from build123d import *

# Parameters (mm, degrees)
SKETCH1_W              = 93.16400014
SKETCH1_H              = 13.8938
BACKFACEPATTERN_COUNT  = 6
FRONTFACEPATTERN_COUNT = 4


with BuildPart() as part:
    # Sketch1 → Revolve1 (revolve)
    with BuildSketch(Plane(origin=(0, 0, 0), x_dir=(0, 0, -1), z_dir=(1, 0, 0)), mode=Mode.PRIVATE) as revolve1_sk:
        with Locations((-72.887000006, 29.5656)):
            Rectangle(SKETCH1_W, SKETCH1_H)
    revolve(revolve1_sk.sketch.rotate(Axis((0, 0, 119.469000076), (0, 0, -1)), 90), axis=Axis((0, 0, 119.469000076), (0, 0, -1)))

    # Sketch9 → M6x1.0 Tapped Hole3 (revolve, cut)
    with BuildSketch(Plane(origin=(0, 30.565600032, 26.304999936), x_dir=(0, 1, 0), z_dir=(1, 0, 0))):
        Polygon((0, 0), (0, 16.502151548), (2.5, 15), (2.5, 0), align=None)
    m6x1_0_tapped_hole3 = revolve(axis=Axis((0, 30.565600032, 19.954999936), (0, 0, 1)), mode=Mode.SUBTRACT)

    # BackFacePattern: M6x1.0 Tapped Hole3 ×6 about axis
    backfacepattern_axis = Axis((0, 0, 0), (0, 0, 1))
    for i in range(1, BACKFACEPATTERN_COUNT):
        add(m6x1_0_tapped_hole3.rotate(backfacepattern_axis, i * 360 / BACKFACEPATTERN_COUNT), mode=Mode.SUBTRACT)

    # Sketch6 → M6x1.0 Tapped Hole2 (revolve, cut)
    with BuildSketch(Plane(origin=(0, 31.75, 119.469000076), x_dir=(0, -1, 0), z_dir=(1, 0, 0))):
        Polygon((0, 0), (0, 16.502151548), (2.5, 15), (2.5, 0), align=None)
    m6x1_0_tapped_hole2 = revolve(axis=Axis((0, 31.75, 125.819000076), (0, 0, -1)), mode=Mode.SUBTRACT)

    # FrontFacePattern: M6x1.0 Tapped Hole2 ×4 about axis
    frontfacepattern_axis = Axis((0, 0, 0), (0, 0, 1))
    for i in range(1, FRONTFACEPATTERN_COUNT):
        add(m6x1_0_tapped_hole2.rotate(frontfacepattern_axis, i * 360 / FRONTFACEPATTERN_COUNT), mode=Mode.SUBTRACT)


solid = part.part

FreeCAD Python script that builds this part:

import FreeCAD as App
import Part
import Sketcher

V = App.Vector
Q = App.Units.Quantity

doc = App.newDocument("Part")
body = doc.addObject("PartDesign::Body", "Body")

sketch1 = doc.addObject("Sketcher::SketchObject", "Sketch")
body.addObject(sketch1)
sketch1.AttachmentSupport = (doc.YZ_Plane, [""])
sketch1.MapMode = "FlatFace"
sketch1.addGeometry(Part.LineSegment(V(37, 119, 0), V(23, 119, 0)), False)
sketch1.addGeometry(Part.LineSegment(V(23, 119, 0), V(23, 26, 0)), False)
sketch1.addGeometry(Part.LineSegment(V(23, 26, 0), V(37, 26, 0)), False)
sketch1.addGeometry(Part.LineSegment(V(37, 26, 0), V(37, 119, 0)), False)
sketch1.addConstraint(Sketcher.Constraint("Coincident", 0, 2, 1, 1))
sketch1.addConstraint(Sketcher.Constraint("Coincident", 1, 2, 2, 1))
sketch1.addConstraint(Sketcher.Constraint("Coincident", 2, 2, 3, 1))
sketch1.addConstraint(Sketcher.Constraint("Coincident", 3, 2, 0, 1))
sketch1.addConstraint(Sketcher.Constraint("Horizontal", 0))
sketch1.addConstraint(Sketcher.Constraint("Vertical", 1))
sketch1.addConstraint(Sketcher.Constraint("Horizontal", 2))
sketch1.addConstraint(Sketcher.Constraint("Vertical", 3))
sketch1.addConstraint(Sketcher.Constraint("DistanceY", 1, 2, 1, 1, 93.164))
sketch1.addConstraint(Sketcher.Constraint("DistanceX", 0, 2, 0, 1, 13.8938))
sketch1.addConstraint(Sketcher.Constraint("DistanceY", -1, 1, 0, 2, 119.469))
sketch1.addConstraint(Sketcher.Constraint("DistanceX", -1, 1, 0, 2, 22.6187))
revolution = doc.addObject("PartDesign::Revolution", "Revolution")
body.addObject(revolution)
revolution.Profile = sketch1
revolution.ReferenceAxis = (sketch1, ["V_Axis"])
revolution.Angle = 360

sketch2 = doc.addObject("Sketcher::SketchObject", "Sketch001")
body.addObject(sketch2)
sketch2.AttachmentSupport = (doc.YZ_Plane, [""])
sketch2.MapMode = "FlatFace"
sketch2.addGeometry(Part.LineSegment(V(30.6, 42.8, 0), V(30.6, 26.3, 0)), False)
sketch2.addGeometry(Part.LineSegment(V(30.6, 26.3, 0), V(33.1, 26.3, 0)), False)
sketch2.addGeometry(Part.LineSegment(V(33.1, 26.3, 0), V(33.1, 41.3, 0)), False)
sketch2.addGeometry(Part.LineSegment(V(33.1, 41.3, 0), V(30.6, 42.8, 0)), False)
sketch2.addGeometry(Part.LineSegment(V(30.6, 26.3, 0), V(30.6, 42.8, 0)), True)
sketch2.addConstraint(Sketcher.Constraint("Coincident", 0, 2, 1, 1))
sketch2.addConstraint(Sketcher.Constraint("Coincident", 1, 2, 2, 1))
sketch2.addConstraint(Sketcher.Constraint("Coincident", 2, 2, 3, 1))
sketch2.addConstraint(Sketcher.Constraint("Coincident", 3, 2, 0, 1))
sketch2.addConstraint(Sketcher.Constraint("Vertical", 0))
sketch2.addConstraint(Sketcher.Constraint("Horizontal", 1))
sketch2.addConstraint(Sketcher.Constraint("Vertical", 2))
sketch2.addConstraint(Sketcher.Constraint("Vertical", 4))
sketch2.addConstraint(Sketcher.Constraint("Coincident", 4, 1, 0, 2))
sketch2.addConstraint(Sketcher.Constraint("Equal", 0, 4))
sketch2.addConstraint(Sketcher.Constraint("DistanceY", 2, 1, 2, 2, 15.0))
sketch2.addConstraint(Sketcher.Constraint("Angle", 3, Q("149 deg")))
sketch2.addConstraint(Sketcher.Constraint("DistanceX", 1, 1, 1, 2, 2.5))
sketch2.addConstraint(Sketcher.Constraint("DistanceY", -1, 1, 0, 2, 26.305))
sketch2.addConstraint(Sketcher.Constraint("DistanceX", -1, 1, 0, 2, 30.5656))
groove = doc.addObject("PartDesign::Groove", "Groove")
body.addObject(groove)
groove.Profile = sketch2
groove.ReferenceAxis = (sketch2, ["Axis0"])
groove.Angle = 360
doc.recompute()

polarpattern = doc.addObject("PartDesign::PolarPattern", "PolarPattern")
body.addObject(polarpattern)
polarpattern.Originals = [groove]
polarpattern.Axis = (doc.Z_Axis, [""])
polarpattern.Angle = 360
polarpattern.Occurrences = 6
body.Tip = polarpattern

sketch3 = doc.addObject("Sketcher::SketchObject", "Sketch002")
body.addObject(sketch3)
sketch3.AttachmentSupport = (doc.YZ_Plane, [""])
sketch3.MapMode = "FlatFace"
sketch3.addGeometry(Part.LineSegment(V(31.8, 103, 0), V(31.8, 119.5, 0)), False)
sketch3.addGeometry(Part.LineSegment(V(31.8, 119.5, 0), V(29.2, 119.5, 0)), False)
sketch3.addGeometry(Part.LineSegment(V(29.2, 119.5, 0), V(29.2, 104.5, 0)), False)
sketch3.addGeometry(Part.LineSegment(V(29.2, 104.5, 0), V(31.8, 103, 0)), False)
sketch3.addGeometry(Part.LineSegment(V(31.8, 119.5, 0), V(31.8, 103, 0)), True)
sketch3.addConstraint(Sketcher.Constraint("Coincident", 0, 2, 1, 1))
sketch3.addConstraint(Sketcher.Constraint("Coincident", 1, 2, 2, 1))
sketch3.addConstraint(Sketcher.Constraint("Coincident", 2, 2, 3, 1))
sketch3.addConstraint(Sketcher.Constraint("Coincident", 3, 2, 0, 1))
sketch3.addConstraint(Sketcher.Constraint("Vertical", 0))
sketch3.addConstraint(Sketcher.Constraint("Horizontal", 1))
sketch3.addConstraint(Sketcher.Constraint("Vertical", 2))
sketch3.addConstraint(Sketcher.Constraint("Vertical", 4))
sketch3.addConstraint(Sketcher.Constraint("Coincident", 4, 1, 0, 2))
sketch3.addConstraint(Sketcher.Constraint("Equal", 0, 4))
sketch3.addConstraint(Sketcher.Constraint("DistanceY", 2, 2, 2, 1, 15.0))
sketch3.addConstraint(Sketcher.Constraint("Angle", 3, Q("-31 deg")))
sketch3.addConstraint(Sketcher.Constraint("DistanceX", 1, 2, 1, 1, 2.5))
sketch3.addConstraint(Sketcher.Constraint("DistanceX", -1, 1, 0, 2, 31.75))
sketch3.addConstraint(Sketcher.Constraint("DistanceY", -1, 1, 0, 2, 119.469))
groove2 = doc.addObject("PartDesign::Groove", "Groove001")
body.addObject(groove2)
groove2.Profile = sketch3
groove2.ReferenceAxis = (sketch3, ["Axis0"])
groove2.Angle = 360
doc.recompute()

polarpattern2 = doc.addObject("PartDesign::PolarPattern", "PolarPattern001")
body.addObject(polarpattern2)
polarpattern2.Originals = [groove2]
polarpattern2.Axis = (doc.Z_Axis, [""])
polarpattern2.Angle = 360
polarpattern2.Occurrences = 4
body.Tip = polarpattern2

doc.recompute()
